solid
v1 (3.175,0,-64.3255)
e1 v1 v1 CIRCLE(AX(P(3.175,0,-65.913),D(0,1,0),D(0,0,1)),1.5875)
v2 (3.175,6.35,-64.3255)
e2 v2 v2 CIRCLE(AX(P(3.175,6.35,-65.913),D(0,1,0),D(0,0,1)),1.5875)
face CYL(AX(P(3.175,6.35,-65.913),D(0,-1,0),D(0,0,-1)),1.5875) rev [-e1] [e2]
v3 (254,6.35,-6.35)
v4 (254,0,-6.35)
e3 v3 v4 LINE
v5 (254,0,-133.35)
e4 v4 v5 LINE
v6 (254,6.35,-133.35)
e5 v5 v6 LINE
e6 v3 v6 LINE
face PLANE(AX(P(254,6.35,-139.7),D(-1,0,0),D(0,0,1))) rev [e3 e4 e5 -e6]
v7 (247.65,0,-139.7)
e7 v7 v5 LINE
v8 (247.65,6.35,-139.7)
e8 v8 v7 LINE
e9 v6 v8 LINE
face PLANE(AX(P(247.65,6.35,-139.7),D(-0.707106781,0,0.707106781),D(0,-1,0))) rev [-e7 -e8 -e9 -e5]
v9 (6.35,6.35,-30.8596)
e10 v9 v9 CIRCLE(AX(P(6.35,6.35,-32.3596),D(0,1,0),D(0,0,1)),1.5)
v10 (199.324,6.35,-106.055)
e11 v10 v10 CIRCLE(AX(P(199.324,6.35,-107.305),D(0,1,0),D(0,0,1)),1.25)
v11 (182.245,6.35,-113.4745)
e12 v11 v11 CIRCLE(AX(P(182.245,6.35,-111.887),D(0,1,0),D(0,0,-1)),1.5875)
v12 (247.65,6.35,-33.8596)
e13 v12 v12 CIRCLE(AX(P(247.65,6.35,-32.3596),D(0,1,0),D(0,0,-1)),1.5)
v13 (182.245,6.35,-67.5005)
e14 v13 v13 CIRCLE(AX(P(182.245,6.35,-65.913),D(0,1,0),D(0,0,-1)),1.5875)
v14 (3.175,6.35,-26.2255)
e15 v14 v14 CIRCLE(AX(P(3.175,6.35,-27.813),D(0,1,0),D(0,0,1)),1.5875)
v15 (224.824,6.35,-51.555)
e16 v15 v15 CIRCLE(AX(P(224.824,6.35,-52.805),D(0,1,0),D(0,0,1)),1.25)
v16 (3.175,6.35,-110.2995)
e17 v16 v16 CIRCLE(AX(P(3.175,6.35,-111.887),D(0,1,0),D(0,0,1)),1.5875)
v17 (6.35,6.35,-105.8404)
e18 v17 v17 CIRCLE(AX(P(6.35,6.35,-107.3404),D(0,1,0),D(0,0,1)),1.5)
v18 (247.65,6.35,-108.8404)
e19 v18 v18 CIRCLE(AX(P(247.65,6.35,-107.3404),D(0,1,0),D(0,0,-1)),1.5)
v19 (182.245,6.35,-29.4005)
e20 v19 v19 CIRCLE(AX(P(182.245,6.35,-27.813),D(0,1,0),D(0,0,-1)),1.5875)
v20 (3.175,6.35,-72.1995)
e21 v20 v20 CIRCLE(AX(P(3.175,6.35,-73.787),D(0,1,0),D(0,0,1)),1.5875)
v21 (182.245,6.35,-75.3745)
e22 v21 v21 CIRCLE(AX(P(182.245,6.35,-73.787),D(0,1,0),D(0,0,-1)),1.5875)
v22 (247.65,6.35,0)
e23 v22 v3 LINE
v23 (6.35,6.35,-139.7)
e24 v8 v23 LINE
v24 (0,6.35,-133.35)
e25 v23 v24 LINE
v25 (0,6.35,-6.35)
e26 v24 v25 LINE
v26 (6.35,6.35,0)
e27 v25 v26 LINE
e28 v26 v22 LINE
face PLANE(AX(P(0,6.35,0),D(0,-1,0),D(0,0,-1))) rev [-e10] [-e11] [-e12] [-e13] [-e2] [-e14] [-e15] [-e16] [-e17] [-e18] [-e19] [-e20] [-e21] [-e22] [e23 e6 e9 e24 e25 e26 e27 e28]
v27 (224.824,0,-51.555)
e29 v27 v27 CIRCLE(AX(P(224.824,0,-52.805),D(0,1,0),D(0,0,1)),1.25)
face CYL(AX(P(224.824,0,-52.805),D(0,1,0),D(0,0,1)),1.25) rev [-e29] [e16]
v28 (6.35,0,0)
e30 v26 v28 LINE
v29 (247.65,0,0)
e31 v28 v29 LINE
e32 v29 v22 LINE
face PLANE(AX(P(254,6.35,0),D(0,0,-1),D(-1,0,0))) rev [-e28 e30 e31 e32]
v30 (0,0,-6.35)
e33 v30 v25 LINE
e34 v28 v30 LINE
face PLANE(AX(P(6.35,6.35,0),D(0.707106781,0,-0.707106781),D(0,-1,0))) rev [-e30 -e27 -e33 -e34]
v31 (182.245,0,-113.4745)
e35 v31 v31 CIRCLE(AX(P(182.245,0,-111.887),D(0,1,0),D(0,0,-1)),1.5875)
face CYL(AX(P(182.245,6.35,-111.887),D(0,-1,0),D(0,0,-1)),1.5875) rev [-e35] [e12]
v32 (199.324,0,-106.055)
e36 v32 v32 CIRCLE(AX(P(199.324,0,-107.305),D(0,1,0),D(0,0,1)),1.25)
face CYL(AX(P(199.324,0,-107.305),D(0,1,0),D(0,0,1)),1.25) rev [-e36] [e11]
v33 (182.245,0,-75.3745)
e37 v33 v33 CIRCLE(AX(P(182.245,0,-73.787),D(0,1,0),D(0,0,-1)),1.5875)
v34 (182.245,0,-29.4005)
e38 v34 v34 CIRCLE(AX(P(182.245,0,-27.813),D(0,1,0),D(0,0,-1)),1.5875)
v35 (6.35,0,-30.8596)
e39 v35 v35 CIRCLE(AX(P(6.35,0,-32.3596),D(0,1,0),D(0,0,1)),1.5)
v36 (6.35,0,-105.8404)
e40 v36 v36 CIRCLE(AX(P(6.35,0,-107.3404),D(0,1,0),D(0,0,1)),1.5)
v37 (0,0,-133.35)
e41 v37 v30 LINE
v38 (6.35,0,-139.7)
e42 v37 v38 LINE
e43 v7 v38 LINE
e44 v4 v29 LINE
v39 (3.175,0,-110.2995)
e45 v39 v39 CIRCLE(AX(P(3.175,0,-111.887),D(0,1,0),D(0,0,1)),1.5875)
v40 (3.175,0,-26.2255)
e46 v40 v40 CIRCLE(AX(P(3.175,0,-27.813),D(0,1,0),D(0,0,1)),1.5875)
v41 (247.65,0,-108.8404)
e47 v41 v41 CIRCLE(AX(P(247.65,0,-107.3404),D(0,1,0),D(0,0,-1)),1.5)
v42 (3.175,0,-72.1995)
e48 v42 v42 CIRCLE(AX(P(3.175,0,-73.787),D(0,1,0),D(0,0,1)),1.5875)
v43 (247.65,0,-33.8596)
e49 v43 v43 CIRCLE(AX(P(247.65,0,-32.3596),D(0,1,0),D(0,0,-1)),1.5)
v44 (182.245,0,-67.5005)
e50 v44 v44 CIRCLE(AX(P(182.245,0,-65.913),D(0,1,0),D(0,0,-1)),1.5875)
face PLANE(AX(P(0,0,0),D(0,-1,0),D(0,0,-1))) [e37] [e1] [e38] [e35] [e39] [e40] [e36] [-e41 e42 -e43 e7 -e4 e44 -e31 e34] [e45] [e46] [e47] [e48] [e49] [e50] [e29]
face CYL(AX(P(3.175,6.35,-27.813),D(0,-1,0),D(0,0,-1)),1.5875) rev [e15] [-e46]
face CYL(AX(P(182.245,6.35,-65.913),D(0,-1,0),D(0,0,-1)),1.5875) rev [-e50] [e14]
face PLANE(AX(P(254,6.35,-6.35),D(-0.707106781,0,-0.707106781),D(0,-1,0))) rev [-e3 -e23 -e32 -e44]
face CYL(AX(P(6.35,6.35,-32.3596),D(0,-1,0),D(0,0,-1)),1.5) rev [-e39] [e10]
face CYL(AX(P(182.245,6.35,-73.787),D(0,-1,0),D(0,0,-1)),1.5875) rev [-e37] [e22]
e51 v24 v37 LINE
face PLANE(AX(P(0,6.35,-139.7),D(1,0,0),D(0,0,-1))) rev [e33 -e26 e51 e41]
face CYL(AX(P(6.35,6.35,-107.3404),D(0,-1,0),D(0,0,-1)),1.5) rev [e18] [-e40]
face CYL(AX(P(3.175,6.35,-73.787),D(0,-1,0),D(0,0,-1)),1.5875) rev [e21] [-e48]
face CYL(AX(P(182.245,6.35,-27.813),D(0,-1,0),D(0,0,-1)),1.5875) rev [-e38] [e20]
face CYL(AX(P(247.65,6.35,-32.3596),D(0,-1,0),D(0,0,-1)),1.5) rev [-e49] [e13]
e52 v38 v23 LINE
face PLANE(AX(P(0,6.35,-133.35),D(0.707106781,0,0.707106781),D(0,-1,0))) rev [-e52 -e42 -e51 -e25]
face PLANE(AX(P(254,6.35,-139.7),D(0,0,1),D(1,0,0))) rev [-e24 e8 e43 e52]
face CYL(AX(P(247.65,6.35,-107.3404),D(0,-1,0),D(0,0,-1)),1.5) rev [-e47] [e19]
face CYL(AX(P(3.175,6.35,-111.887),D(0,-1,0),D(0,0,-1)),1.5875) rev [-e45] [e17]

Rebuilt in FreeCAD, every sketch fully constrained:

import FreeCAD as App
import Part
import Sketcher

V = App.Vector
Q = App.Units.Quantity


def edges_at(feature, points):
    """Names of the edges that pass closest to the given points."""
    edges = feature.Shape.Edges
    near = lambda p: min(range(len(edges)), key=lambda i: edges[i].distToShape(Part.Vertex(*p))[0])
    return sorted({f"Edge{near(p) + 1}" for p in points})

doc = App.newDocument("Part")
body = doc.addObject("PartDesign::Body", "Body")

sketch1 = doc.addObject("Sketcher::SketchObject", "Sketch")
body.addObject(sketch1)
sketch1.AttachmentSupport = (doc.XZ_Plane, [""])
sketch1.MapMode = "FlatFace"
sketch1.addGeometry([
    Part.LineSegment(V(0, -139.7, 0), V(0, 0, 0)),
    Part.LineSegment(V(0, 0, 0), V(254, 0, 0)),
    Part.LineSegment(V(254, 0, 0), V(254, -139.7, 0)),
    Part.LineSegment(V(254, -139.7, 0), V(0, -139.7, 0)),
    Part.Circle(V(3.2, -27.8, 0), V(0, 0, 1), 1.6),
    Part.Circle(V(6.3, -32.4, 0), V(0, 0, 1), 1.5),
    Part.Circle(V(3.2, -65.9, 0), V(0, 0, 1), 1.6),
    Part.Circle(V(182.2, -27.8, 0), V(0, 0, 1), 1.6),
    Part.Circle(V(247.7, -32.4, 0), V(0, 0, 1), 1.5),
    Part.Circle(V(182.2, -65.9, 0), V(0, 0, 1), 1.6),
    Part.Circle(V(3.2, -73.8, 0), V(0, 0, 1), 1.6),
    Part.Circle(V(6.3, -107.3, 0), V(0, 0, 1), 1.5),
    Part.Circle(V(3.2, -111.9, 0), V(0, 0, 1), 1.6),
    Part.Circle(V(182.2, -73.8, 0), V(0, 0, 1), 1.6),
    Part.Circle(V(182.2, -111.9, 0), V(0, 0, 1), 1.6),
    Part.Circle(V(247.7, -107.3, 0), V(0, 0, 1), 1.5),
], False)
sketch1.addConstraint([
    Sketcher.Constraint("Coincident", 0, 2, 1, 1),
    Sketcher.Constraint("Coincident", 1, 2, 2, 1),
    Sketcher.Constraint("Coincident", 2, 2, 3, 1),
    Sketcher.Constraint("Coincident", 3, 2, 0, 1),
    Sketcher.Constraint("Vertical", 0),
    Sketcher.Constraint("Horizontal", 1),
    Sketcher.Constraint("Vertical", 2),
    Sketcher.Constraint("Horizontal", 3),
    Sketcher.Constraint("Coincident", 0, 2, -1, 1),
    Sketcher.Constraint("Equal", 4, 6),
    Sketcher.Constraint("Equal", 6, 7),
    Sketcher.Constraint("Equal", 5, 8),
    Sketcher.Constraint("Equal", 7, 9),
    Sketcher.Constraint("Equal", 9, 10),
    Sketcher.Constraint("Equal", 8, 11),
    Sketcher.Constraint("Equal", 10, 12),
    Sketcher.Constraint("Equal", 12, 13),
    Sketcher.Constraint("Equal", 13, 14),
    Sketcher.Constraint("Equal", 11, 15),
    Sketcher.Constraint("Horizontal", 4, 3, 7, 3),
    Sketcher.Constraint("Horizontal", 5, 3, 8, 3),
    Sketcher.Constraint("Horizontal", 6, 3, 9, 3),
    Sketcher.Constraint("Horizontal", 10, 3, 13, 3),
    Sketcher.Constraint("Horizontal", 12, 3, 14, 3),
    Sketcher.Constraint("Horizontal", 11, 3, 15, 3),
    Sketcher.Constraint("Vertical", 4, 3, 6, 3),
    Sketcher.Constraint("Vertical", 7, 3, 9, 3),
    Sketcher.Constraint("Vertical", 6, 3, 10, 3),
    Sketcher.Constraint("Vertical", 5, 3, 11, 3),
    Sketcher.Constraint("Vertical", 10, 3, 12, 3),
    Sketcher.Constraint("Vertical", 9, 3, 13, 3),
    Sketcher.Constraint("Vertical", 13, 3, 14, 3),
    Sketcher.Constraint("Vertical", 8, 3, 15, 3),
    Sketcher.Constraint("DistanceX", 1, 1, 1, 2, Q("10 in")),
    Sketcher.Constraint("Diameter", 4, Q("0.125 in")),
    Sketcher.Constraint("DistanceY", 0, 1, 0, 2, Q("5.5 in")),
    Sketcher.Constraint("DistanceY", 6, 3, 4, 3, Q("1.5 in")),
    Sketcher.Constraint("DistanceX", 5, 3, 8, 3, Q("9.5 in")),
    Sketcher.Constraint("DistanceY", 12, 3, 10, 3, Q("1.5 in")),
    Sketcher.Constraint("Diameter", 5, Q("3 mm")),
    Sketcher.Constraint("DistanceX", -1, 1, 5, 3, Q("0.25 in")),
    Sketcher.Constraint("DistanceX", 4, 3, 7, 3, Q("7.05 in")),
    Sketcher.Constraint("DistanceY", 10, 3, 6, 3, Q("0.31 in")),
    Sketcher.Constraint("DistanceX", -1, 1, 4, 3, Q("0.125 in")),
    Sketcher.Constraint("DistanceY", 4, 3, -1, 1, Q("1.095 in")),
    Sketcher.Constraint("DistanceY", 5, 3, -1, 1, Q("1.274 in")),
    Sketcher.Constraint("DistanceY", 11, 3, -1, 1, Q("4.226 in")),
])
pad1 = doc.addObject("PartDesign::Pad", "Pad")
body.addObject(pad1)
pad1.Profile = sketch1
pad1.Length = Q("0.25 in")
pad1.Reversed = True

sketch2 = doc.addObject("Sketcher::SketchObject", "Sketch001")
body.addObject(sketch2)
sketch2.AttachmentSupport = (doc.XZ_Plane, [""])
sketch2.MapMode = "FlatFace"
sketch2.AttachmentOffset = App.Placement(V(0, 0, -0.25 * 25.4), App.Rotation())
sketch2.addGeometry([
    Part.Circle(V(199.3, -107.3, 0), V(0, 0, 1), 1.2),
    Part.Circle(V(224.8, -52.8, 0), V(0, 0, 1), 1.2),
], False)
sketch2.addConstraint([
    Sketcher.Constraint("Equal", 0, 1),
    Sketcher.Constraint("Diameter", 0, Q("2.5 mm")),
    Sketcher.Constraint("DistanceX", -1, 1, 0, 3, Q("199.324 mm")),
    Sketcher.Constraint("DistanceY", 0, 3, -1, 1, Q("107.305 mm")),
    Sketcher.Constraint("DistanceX", -1, 1, 1, 3, Q("224.824 mm")),
    Sketcher.Constraint("DistanceY", 1, 3, -1, 1, Q("52.805 mm")),
])
pocket1 = doc.addObject("PartDesign::Pocket", "Pocket")
body.addObject(pocket1)
pocket1.Profile = sketch2
pocket1.Length = Q("0.25 in")
pocket1.Reversed = True
doc.recompute()

chamfer = doc.addObject("PartDesign::Chamfer", "Chamfer")
body.addObject(chamfer)
chamfer.Base = (pocket1, edges_at(pocket1, [
    (254, 3.175, 0),
    (0, 3.175, 0),
    (0, 3.175, -139.7),
    (254, 3.175, -139.7),
]))
chamfer.Size = Q("0.25 in")

doc.recompute()
